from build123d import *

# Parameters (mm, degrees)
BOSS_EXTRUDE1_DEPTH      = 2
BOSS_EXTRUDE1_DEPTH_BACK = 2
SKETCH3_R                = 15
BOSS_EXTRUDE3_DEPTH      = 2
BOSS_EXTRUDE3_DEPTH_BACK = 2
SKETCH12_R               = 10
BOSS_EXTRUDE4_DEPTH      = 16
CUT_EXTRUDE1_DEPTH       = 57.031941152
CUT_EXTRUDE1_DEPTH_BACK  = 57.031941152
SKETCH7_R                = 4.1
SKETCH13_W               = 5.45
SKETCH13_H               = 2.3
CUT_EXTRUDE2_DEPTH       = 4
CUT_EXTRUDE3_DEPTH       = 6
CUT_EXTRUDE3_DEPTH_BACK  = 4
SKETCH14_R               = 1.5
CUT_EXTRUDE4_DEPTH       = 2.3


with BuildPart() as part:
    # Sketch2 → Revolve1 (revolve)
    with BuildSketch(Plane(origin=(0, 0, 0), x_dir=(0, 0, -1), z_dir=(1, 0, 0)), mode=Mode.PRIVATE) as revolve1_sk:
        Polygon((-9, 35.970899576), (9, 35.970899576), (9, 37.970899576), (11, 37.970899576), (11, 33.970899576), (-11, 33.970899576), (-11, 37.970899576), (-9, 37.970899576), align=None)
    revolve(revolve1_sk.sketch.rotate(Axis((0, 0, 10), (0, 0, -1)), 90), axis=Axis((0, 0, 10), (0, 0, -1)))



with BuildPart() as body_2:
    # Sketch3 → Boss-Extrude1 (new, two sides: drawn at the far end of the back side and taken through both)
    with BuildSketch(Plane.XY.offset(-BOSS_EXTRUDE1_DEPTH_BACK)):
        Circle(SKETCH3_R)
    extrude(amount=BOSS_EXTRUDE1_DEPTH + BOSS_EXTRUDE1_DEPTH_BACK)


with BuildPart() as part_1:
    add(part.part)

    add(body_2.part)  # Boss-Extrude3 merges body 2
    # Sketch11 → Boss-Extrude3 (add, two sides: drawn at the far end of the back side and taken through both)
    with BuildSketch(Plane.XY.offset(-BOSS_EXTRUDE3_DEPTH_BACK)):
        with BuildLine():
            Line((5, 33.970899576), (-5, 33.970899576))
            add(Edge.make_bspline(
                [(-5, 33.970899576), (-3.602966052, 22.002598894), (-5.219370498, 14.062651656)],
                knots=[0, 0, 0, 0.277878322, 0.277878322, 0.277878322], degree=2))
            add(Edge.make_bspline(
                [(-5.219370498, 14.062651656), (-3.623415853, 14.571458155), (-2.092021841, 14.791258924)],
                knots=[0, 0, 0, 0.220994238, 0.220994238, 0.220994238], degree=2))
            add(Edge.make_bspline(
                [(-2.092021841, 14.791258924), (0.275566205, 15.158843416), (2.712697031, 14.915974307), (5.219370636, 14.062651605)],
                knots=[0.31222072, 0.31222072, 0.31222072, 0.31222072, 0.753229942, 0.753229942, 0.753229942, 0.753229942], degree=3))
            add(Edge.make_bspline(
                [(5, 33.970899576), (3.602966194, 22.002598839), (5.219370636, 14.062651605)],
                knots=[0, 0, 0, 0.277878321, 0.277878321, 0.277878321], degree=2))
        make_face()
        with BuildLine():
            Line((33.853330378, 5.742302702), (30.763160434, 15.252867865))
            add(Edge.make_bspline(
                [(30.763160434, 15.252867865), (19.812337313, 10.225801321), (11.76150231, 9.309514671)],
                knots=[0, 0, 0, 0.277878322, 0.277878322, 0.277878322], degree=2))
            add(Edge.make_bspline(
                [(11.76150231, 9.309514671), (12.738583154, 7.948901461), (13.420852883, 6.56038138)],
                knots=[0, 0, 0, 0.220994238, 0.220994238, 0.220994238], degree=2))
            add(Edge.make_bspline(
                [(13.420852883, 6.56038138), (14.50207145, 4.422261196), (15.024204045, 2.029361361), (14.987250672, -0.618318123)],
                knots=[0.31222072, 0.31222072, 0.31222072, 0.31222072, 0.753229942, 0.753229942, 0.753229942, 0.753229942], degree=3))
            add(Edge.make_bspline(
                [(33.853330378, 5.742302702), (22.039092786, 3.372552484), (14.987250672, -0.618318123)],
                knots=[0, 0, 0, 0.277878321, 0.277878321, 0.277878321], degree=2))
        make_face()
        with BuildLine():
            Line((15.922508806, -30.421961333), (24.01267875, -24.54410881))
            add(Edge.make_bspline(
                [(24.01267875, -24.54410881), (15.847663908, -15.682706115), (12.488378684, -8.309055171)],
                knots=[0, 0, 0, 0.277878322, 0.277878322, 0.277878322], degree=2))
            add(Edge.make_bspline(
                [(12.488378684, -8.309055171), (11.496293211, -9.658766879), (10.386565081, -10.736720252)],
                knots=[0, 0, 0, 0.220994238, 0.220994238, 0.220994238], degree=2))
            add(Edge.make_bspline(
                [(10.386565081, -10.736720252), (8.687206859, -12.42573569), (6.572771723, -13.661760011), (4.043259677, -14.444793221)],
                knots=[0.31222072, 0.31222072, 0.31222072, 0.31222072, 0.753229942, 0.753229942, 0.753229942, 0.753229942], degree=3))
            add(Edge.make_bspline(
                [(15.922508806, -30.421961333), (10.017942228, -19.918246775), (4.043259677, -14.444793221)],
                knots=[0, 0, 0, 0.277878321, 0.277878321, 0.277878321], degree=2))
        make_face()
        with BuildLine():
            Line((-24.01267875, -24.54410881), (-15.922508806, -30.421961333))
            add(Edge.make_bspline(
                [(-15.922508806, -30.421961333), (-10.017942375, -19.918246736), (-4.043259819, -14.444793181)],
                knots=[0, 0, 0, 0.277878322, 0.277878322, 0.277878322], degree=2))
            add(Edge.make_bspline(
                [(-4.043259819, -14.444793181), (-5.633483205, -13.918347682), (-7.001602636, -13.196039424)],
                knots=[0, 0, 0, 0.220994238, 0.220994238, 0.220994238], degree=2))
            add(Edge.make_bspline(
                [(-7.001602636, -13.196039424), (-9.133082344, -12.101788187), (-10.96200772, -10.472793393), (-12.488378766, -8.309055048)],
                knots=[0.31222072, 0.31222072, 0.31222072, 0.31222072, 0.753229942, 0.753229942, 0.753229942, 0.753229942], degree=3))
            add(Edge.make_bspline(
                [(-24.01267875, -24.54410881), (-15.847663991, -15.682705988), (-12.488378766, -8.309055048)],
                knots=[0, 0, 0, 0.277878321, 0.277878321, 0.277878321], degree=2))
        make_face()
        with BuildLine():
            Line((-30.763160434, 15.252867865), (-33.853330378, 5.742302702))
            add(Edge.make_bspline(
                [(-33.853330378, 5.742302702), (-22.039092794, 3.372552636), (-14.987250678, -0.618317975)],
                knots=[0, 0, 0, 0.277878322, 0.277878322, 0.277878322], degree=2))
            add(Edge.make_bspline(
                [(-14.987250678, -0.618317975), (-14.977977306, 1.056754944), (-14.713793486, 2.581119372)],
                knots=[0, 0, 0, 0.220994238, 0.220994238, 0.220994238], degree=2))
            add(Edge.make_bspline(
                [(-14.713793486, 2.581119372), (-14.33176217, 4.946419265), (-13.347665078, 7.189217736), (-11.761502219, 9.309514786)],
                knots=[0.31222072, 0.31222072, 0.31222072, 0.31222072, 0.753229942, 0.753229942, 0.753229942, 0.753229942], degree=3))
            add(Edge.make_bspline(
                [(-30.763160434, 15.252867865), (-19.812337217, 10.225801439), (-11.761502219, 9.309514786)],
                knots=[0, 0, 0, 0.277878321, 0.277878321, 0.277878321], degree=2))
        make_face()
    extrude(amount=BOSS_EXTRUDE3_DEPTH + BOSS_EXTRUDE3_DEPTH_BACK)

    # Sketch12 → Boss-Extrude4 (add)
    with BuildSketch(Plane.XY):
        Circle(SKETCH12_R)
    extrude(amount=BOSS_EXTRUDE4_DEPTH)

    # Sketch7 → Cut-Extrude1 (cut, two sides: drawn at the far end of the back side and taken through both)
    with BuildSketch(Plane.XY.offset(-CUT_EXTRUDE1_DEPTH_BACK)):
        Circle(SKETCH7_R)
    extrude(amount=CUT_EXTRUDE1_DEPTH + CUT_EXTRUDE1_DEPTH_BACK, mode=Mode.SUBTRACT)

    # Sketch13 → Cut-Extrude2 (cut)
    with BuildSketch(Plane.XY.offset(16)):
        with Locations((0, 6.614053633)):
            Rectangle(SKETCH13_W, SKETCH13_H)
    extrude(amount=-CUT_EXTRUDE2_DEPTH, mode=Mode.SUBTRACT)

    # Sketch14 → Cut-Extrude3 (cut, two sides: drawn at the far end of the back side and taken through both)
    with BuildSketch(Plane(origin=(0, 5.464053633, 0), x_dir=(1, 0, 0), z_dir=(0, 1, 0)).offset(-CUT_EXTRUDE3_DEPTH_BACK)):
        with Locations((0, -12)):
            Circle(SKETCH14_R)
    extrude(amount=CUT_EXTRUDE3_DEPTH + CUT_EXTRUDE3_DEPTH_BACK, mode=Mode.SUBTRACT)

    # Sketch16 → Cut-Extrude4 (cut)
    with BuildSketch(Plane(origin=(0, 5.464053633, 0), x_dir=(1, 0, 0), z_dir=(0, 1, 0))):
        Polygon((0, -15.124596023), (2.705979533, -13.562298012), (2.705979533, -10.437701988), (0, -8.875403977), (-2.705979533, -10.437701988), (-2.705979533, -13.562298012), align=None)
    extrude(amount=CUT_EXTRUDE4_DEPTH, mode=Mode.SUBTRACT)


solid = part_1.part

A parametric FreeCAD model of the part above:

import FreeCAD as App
import Part
import Sketcher
Q = App.Units.Quantity


def add_polygon(sketch, points):
    """Adds a closed chain of lines whose ends are joined by coincident constraints."""
    first, n = sketch.GeometryCount, len(points)
    for a, b in zip(points, points[1:] + points[:1]):
        sketch.addGeometry(Part.LineSegment(App.Vector(*a, 0), App.Vector(*b, 0)), False)
    for i in range(n):
        sketch.addConstraint(Sketcher.Constraint("Coincident", first + i, 2, first + (i + 1) % n, 1))

doc = App.newDocument("Part")
params = doc.addObject("Spreadsheet::Sheet", "Params")
for row, (alias, value) in enumerate([
    ("sketch1_width", "2 mm"),
    ("sketch1_width2", "4 mm"),
    ("sketch1_height", "18 mm"),
    ("revolution_angle", "360 deg"),
    ("sketch2_diameter", "30 mm"),
    ("pad1_length", "2 mm"),
    ("pad1_length2", "2 mm"),
    ("pad2_length", "2 mm"),
    ("pad2_length2", "2 mm"),
    ("sketch4_diameter", "20 mm"),
    ("pad3_length", "16 mm"),
    ("sketch5_diameter", "8.2 mm"),
    ("sketch6_height", "2.3 mm"),
    ("sketch6_width", "5.45 mm"),
    ("pocket2_length", "4 mm"),
    ("sketch7_diameter", "3 mm"),
    ("pocket3_length", "6 mm"),
    ("pocket3_length2", "4 mm"),
    ("pocket4_length", "2.3 mm"),
], start=1):
    params.set(f"A{row}", alias)
    params.set(f"B{row}", "=" + value)
    params.setAlias(f"B{row}", alias)

body = doc.addObject("PartDesign::Body", "Body")

# Sketch on YZ plane
sketch1 = body.newObject("Sketcher::SketchObject", "Sketch")
sketch1.AttachmentSupport = (doc.getObject("YZ_Plane"), [""])
sketch1.MapMode = "FlatFace"
add_polygon(sketch1, [(36, -9), (36, 9), (38, 9), (38, 11), (34, 11), (34, -11), (38, -11), (38, -9)])  # lines 0-7
sketch1.addConstraint(Sketcher.Constraint("Vertical", 0))
sketch1.addConstraint(Sketcher.Constraint("Horizontal", 1))
sketch1.addConstraint(Sketcher.Constraint("Vertical", 2))
sketch1.addConstraint(Sketcher.Constraint("Horizontal", 3))
sketch1.addConstraint(Sketcher.Constraint("Vertical", 4))
sketch1.addConstraint(Sketcher.Constraint("Horizontal", 5))
sketch1.addConstraint(Sketcher.Constraint("Vertical", 6))
sketch1.addConstraint(Sketcher.Constraint("Horizontal", 7))
sketch1.addConstraint(Sketcher.Constraint("Symmetric", 2, 2, 5, 2, -1))
sketch1.addConstraint(Sketcher.Constraint("Equal", 7, 2))
sketch1.addConstraint(Sketcher.Constraint("Equal", 2, 6))
sketch1.addConstraint(Sketcher.Constraint("DistanceX", 1, 1, 1, 2, 2.0))
sketch1.addConstraint(Sketcher.Constraint("DistanceX", 3, 2, 3, 1, 4.0))
sketch1.addConstraint(Sketcher.Constraint("DistanceY", 0, 1, 0, 2, 18.0))
sketch1.addConstraint(Sketcher.Constraint("DistanceX", -1, 1, 0, 2, 35.9709))
sketch1.setExpression("Constraints[19]", "Params.sketch1_width")
sketch1.setExpression("Constraints[20]", "Params.sketch1_width2")
sketch1.setExpression("Constraints[21]", "Params.sketch1_height")
revolution = body.newObject("PartDesign::Revolution", "Revolution")
revolution.Profile = sketch1
revolution.ReferenceAxis = (sketch1, ["V_Axis"])
revolution.setExpression("Angle", "Params.revolution_angle")
body2 = doc.addObject("PartDesign::Body", "Body001")

# Sketch on XY plane
sketch2 = body2.newObject("Sketcher::SketchObject", "Sketch001")
sketch2.AttachmentSupport = (doc.getObject("XY_Plane001"), [""])
sketch2.MapMode = "FlatFace"
sketch2.addGeometry(Part.Circle(App.Vector(0, 0, 0), App.Vector(0, 0, 1), 15), False)
sketch2.addConstraint(Sketcher.Constraint("Coincident", 0, 3, -1, 1))
sketch2.addConstraint(Sketcher.Constraint("Diameter", 0, 30.0))
sketch2.setExpression("Constraints[1]", "Params.sketch2_diameter")
pad1 = body2.newObject("PartDesign::Pad", "Pad")
pad1.Profile = sketch2
pad1.Type = "TwoLengths"
pad1.setExpression("Length", "Params.pad1_length")
pad1.setExpression("Length2", "Params.pad1_length2")
body.AllowCompound = True
doc.recompute()

boolean = body.newObject("PartDesign::Boolean", "Boolean")
boolean.Type = "Fuse"
boolean.addObjects([body2])

# Sketch on XY plane
sketch3 = body.newObject("Sketcher::SketchObject", "Sketch002")
sketch3.AttachmentSupport = (doc.getObject("XY_Plane"), [""])
sketch3.MapMode = "FlatFace"
sketch3.addGeometry(Part.LineSegment(App.Vector(5, 33.9709, 0), App.Vector(-5, 33.9709, 0)), False)
sketch3.addGeometry(Part.BSplineCurve([App.Vector(-5, 33.9709, 0), App.Vector(-3.602966, 22.002599, 0), App.Vector(-5.21937, 14.062652, 0)], [3, 3], [0, 0.277878322], False, 2, [1, 1, 1], False), False)
sketch3.addGeometry(Part.BSplineCurve([App.Vector(-5.21937, 14.062652, 0), App.Vector(-3.623416, 14.571458, 0), App.Vector(-2.092022, 14.791259, 0)], [3, 3], [0, 0.220994238], False, 2, [1, 1, 1], False), False)
sketch3.addGeometry(Part.BSplineCurve([App.Vector(-2.092022, 14.791259, 0), App.Vector(0.275566, 15.158843, 0), App.Vector(2.712697, 14.915974, 0), App.Vector(5.219371, 14.062652, 0)], [4, 4], [0.31222072, 0.753229942], False, 3, [1, 1, 1, 1], False), False)
sketch3.addGeometry(Part.BSplineCurve([App.Vector(5, 33.9709, 0), App.Vector(3.602966, 22.002599, 0), App.Vector(5.219371, 14.062652, 0)], [3, 3], [0, 0.277878321], False, 2, [1, 1, 1], False), False)
sketch3.addGeometry(Part.LineSegment(App.Vector(33.85333, 5.742303, 0), App.Vector(30.76316, 15.252868, 0)), False)
sketch3.addGeometry(Part.BSplineCurve([App.Vector(30.76316, 15.252868, 0), App.Vector(19.812337, 10.225801, 0), App.Vector(11.761502, 9.309515, 0)], [3, 3], [0, 0.277878322], False, 2, [1, 1, 1], False), False)
sketch3.addGeometry(Part.BSplineCurve([App.Vector(11.761502, 9.309515, 0), App.Vector(12.738583, 7.948901, 0), App.Vector(13.420853, 6.560381, 0)], [3, 3], [0, 0.220994238], False, 2, [1, 1, 1], False), False)
sketch3.addGeometry(Part.BSplineCurve([App.Vector(13.420853, 6.560381, 0), App.Vector(14.502071, 4.422261, 0), App.Vector(15.024204, 2.029361, 0), App.Vector(14.987251, -0.618318, 0)], [4, 4], [0.31222072, 0.753229942], False, 3, [1, 1, 1, 1], False), False)
sketch3.addGeometry(Part.BSplineCurve([App.Vector(33.85333, 5.742303, 0), App.Vector(22.039093, 3.372552, 0), App.Vector(14.987251, -0.618318, 0)], [3, 3], [0, 0.277878321], False, 2, [1, 1, 1], False), False)
sketch3.addGeometry(Part.LineSegment(App.Vector(15.922509, -30.421961, 0), App.Vector(24.012679, -24.544109, 0)), False)
sketch3.addGeometry(Part.BSplineCurve([App.Vector(24.012679, -24.544109, 0), App.Vector(15.847664, -15.682706, 0), App.Vector(12.488379, -8.309055, 0)], [3, 3], [0, 0.277878322], False, 2, [1, 1, 1], False), False)
sketch3.addGeometry(Part.BSplineCurve([App.Vector(12.488379, -8.309055, 0), App.Vector(11.496293, -9.658767, 0), App.Vector(10.386565, -10.73672, 0)], [3, 3], [0, 0.220994238], False, 2, [1, 1, 1], False), False)
sketch3.addGeometry(Part.BSplineCurve([App.Vector(10.386565, -10.73672, 0), App.Vector(8.687207, -12.425736, 0), App.Vector(6.572772, -13.66176, 0), App.Vector(4.04326, -14.444793, 0)], [4, 4], [0.31222072, 0.753229942], False, 3, [1, 1, 1, 1], False), False)
sketch3.addGeometry(Part.BSplineCurve([App.Vector(15.922509, -30.421961, 0), App.Vector(10.017942, -19.918247, 0), App.Vector(4.04326, -14.444793, 0)], [3, 3], [0, 0.277878321], False, 2, [1, 1, 1], False), False)
sketch3.addGeometry(Part.LineSegment(App.Vector(-24.012679, -24.544109, 0), App.Vector(-15.922509, -30.421961, 0)), False)
sketch3.addGeometry(Part.BSplineCurve([App.Vector(-15.922509, -30.421961, 0), App.Vector(-10.017942, -19.918247, 0), App.Vector(-4.04326, -14.444793, 0)], [3, 3], [0, 0.277878322], False, 2, [1, 1, 1], False), False)
sketch3.addGeometry(Part.BSplineCurve([App.Vector(-4.04326, -14.444793, 0), App.Vector(-5.633483, -13.918348, 0), App.Vector(-7.001603, -13.196039, 0)], [3, 3], [0, 0.220994238], False, 2, [1, 1, 1], False), False)
sketch3.addGeometry(Part.BSplineCurve([App.Vector(-7.001603, -13.196039, 0), App.Vector(-9.133082, -12.101788, 0), App.Vector(-10.962008, -10.472793, 0), App.Vector(-12.488379, -8.309055, 0)], [4, 4], [0.31222072, 0.753229942], False, 3, [1, 1, 1, 1], False), False)
sketch3.addGeometry(Part.BSplineCurve([App.Vector(-24.012679, -24.544109, 0), App.Vector(-15.847664, -15.682706, 0), App.Vector(-12.488379, -8.309055, 0)], [3, 3], [0, 0.277878321], False, 2, [1, 1, 1], False), False)
sketch3.addGeometry(Part.LineSegment(App.Vector(-30.76316, 15.252868, 0), App.Vector(-33.85333, 5.742303, 0)), False)
sketch3.addGeometry(Part.BSplineCurve([App.Vector(-33.85333, 5.742303, 0), App.Vector(-22.039093, 3.372553, 0), App.Vector(-14.987251, -0.618318, 0)], [3, 3], [0, 0.277878322], False, 2, [1, 1, 1], False), False)
sketch3.addGeometry(Part.BSplineCurve([App.Vector(-14.987251, -0.618318, 0), App.Vector(-14.977977, 1.056755, 0), App.Vector(-14.713793, 2.581119, 0)], [3, 3], [0, 0.220994238], False, 2, [1, 1, 1], False), False)
sketch3.addGeometry(Part.BSplineCurve([App.Vector(-14.713793, 2.581119, 0), App.Vector(-14.331762, 4.946419, 0), App.Vector(-13.347665, 7.189218, 0), App.Vector(-11.761502, 9.309515, 0)], [4, 4], [0.31222072, 0.753229942], False, 3, [1, 1, 1, 1], False), False)
sketch3.addGeometry(Part.BSplineCurve([App.Vector(-30.76316, 15.252868, 0), App.Vector(-19.812337, 10.225801, 0), App.Vector(-11.761502, 9.309515, 0)], [3, 3], [0, 0.277878321], False, 2, [1, 1, 1], False), False)
sketch3.addConstraint(Sketcher.Constraint("Block", 1))
sketch3.addConstraint(Sketcher.Constraint("Block", 2))
sketch3.addConstraint(Sketcher.Constraint("Block", 3))
sketch3.addConstraint(Sketcher.Constraint("Block", 4))
sketch3.addConstraint(Sketcher.Constraint("Block", 6))
sketch3.addConstraint(Sketcher.Constraint("Block", 7))
sketch3.addConstraint(Sketcher.Constraint("Block", 8))
sketch3.addConstraint(Sketcher.Constraint("Block", 9))
sketch3.addConstraint(Sketcher.Constraint("Block", 11))
sketch3.addConstraint(Sketcher.Constraint("Block", 12))
sketch3.addConstraint(Sketcher.Constraint("Block", 13))
sketch3.addConstraint(Sketcher.Constraint("Block", 14))
sketch3.addConstraint(Sketcher.Constraint("Block", 16))
sketch3.addConstraint(Sketcher.Constraint("Block", 17))
sketch3.addConstraint(Sketcher.Constraint("Block", 18))
sketch3.addConstraint(Sketcher.Constraint("Block", 19))
sketch3.addConstraint(Sketcher.Constraint("Block", 21))
sketch3.addConstraint(Sketcher.Constraint("Block", 22))
sketch3.addConstraint(Sketcher.Constraint("Block", 23))
sketch3.addConstraint(Sketcher.Constraint("Block", 24))
sketch3.addConstraint(Sketcher.Constraint("Coincident", 0, 2, 1, 1))
sketch3.addConstraint(Sketcher.Constraint("Coincident", 4, 1, 0, 1))
sketch3.addConstraint(Sketcher.Constraint("Coincident", 5, 2, 6, 1))
sketch3.addConstraint(Sketcher.Constraint("Coincident", 9, 1, 5, 1))
sketch3.addConstraint(Sketcher.Constraint("Coincident", 10, 2, 11, 1))
sketch3.addConstraint(Sketcher.Constraint("Coincident", 14, 1, 10, 1))
sketch3.addConstraint(Sketcher.Constraint("Coincident", 15, 2, 16, 1))
sketch3.addConstraint(Sketcher.Constraint("Coincident", 19, 1, 15, 1))
sketch3.addConstraint(Sketcher.Constraint("Coincident", 20, 2, 21, 1))
sketch3.addConstraint(Sketcher.Constraint("Coincident", 24, 1, 20, 1))
pad2 = body.newObject("PartDesign::Pad", "Pad001")
pad2.Profile = sketch3
pad2.Type = "TwoLengths"
pad2.setExpression("Length", "Params.pad2_length")
pad2.setExpression("Length2", "Params.pad2_length2")

# Sketch on XY plane
sketch4 = body.newObject("Sketcher::SketchObject", "Sketch003")
sketch4.AttachmentSupport = (doc.getObject("XY_Plane"), [""])
sketch4.MapMode = "FlatFace"
sketch4.addGeometry(Part.Circle(App.Vector(0, 0, 0), App.Vector(0, 0, 1), 10), False)
sketch4.addConstraint(Sketcher.Constraint("Coincident", 0, 3, -1, 1))
sketch4.addConstraint(Sketcher.Constraint("Diameter", 0, 20.0))
sketch4.setExpression("Constraints[1]", "Params.sketch4_diameter")
pad3 = body.newObject("PartDesign::Pad", "Pad002")
pad3.Profile = sketch4
pad3.setExpression("Length", "Params.pad3_length")

# Sketch on XY plane
sketch5 = body.newObject("Sketcher::SketchObject", "Sketch004")
sketch5.AttachmentSupport = (doc.getObject("XY_Plane"), [""])
sketch5.MapMode = "FlatFace"
sketch5.addGeometry(Part.Circle(App.Vector(0, 0, 0), App.Vector(0, 0, 1), 4.1), False)
sketch5.addConstraint(Sketcher.Constraint("Coincident", 0, 3, -1, 1))
sketch5.addConstraint(Sketcher.Constraint("Diameter", 0, 8.2))
sketch5.setExpression("Constraints[1]", "Params.sketch5_diameter")
pocket1 = body.newObject("PartDesign::Pocket", "Pocket")
pocket1.Profile = sketch5
pocket1.Type = "ThroughAll"
pocket1.Midplane = True

# Sketch on XY plane
sketch6 = body.newObject("Sketcher::SketchObject", "Sketch005")
sketch6.AttachmentSupport = (doc.getObject("XY_Plane"), [""])
sketch6.MapMode = "FlatFace"
sketch6.AttachmentOffset = App.Placement(App.Vector(0, 0, 16), App.Rotation())
add_polygon(sketch6, [(-2.7, 7.8), (-2.7, 5.5), (2.7, 5.5), (2.7, 7.8)])  # lines 0-3
sketch6.addConstraint(Sketcher.Constraint("Vertical", 0))
sketch6.addConstraint(Sketcher.Constraint("Horizontal", 1))
sketch6.addConstraint(Sketcher.Constraint("Vertical", 2))
sketch6.addConstraint(Sketcher.Constraint("Horizontal", 3))
sketch6.addConstraint(Sketcher.Constraint("DistanceY", 0, 2, 0, 1, 2.3))
sketch6.addConstraint(Sketcher.Constraint("DistanceX", 1, 1, 1, 2, 5.45))
sketch6.addConstraint(Sketcher.Constraint("DistanceX", 0, 2, -1, 1, 2.725))
sketch6.addConstraint(Sketcher.Constraint("DistanceY", -1, 1, 0, 2, 5.464054))
sketch6.setExpression("Constraints[8]", "Params.sketch6_height")
sketch6.setExpression("Constraints[9]", "Params.sketch6_width")
pocket2 = body.newObject("PartDesign::Pocket", "Pocket001")
pocket2.Profile = sketch6
pocket2.setExpression("Length", "Params.pocket2_length")

# Sketch on XZ plane
sketch7 = body.newObject("Sketcher::SketchObject", "Sketch006")
sketch7.AttachmentSupport = (doc.getObject("XZ_Plane"), [""])
sketch7.MapMode = "FlatFace"
sketch7.AttachmentOffset = App.Placement(App.Vector(0, 0, -5.464054), App.Rotation())
sketch7.addGeometry(Part.Circle(App.Vector(0, 12, 0), App.Vector(0, 0, 1), 1.5), False)
sketch7.addConstraint(Sketcher.Constraint("PointOnObject", 0, 3, -2))
sketch7.addConstraint(Sketcher.Constraint("Diameter", 0, 3.0))
sketch7.addConstraint(Sketcher.Constraint("DistanceY", -1, 1, 0, 3, 12.0))
sketch7.setExpression("Constraints[1]", "Params.sketch7_diameter")
pocket3 = body.newObject("PartDesign::Pocket", "Pocket002")
pocket3.Profile = sketch7
pocket3.Type = "TwoLengths"
pocket3.setExpression("Length", "Params.pocket3_length")
pocket3.setExpression("Length2", "Params.pocket3_length2")

# Sketch on XZ plane
sketch8 = body.newObject("Sketcher::SketchObject", "Sketch007")
sketch8.AttachmentSupport = (doc.getObject("XZ_Plane"), [""])
sketch8.MapMode = "FlatFace"
sketch8.AttachmentOffset = App.Placement(App.Vector(0, 0, -5.464054), App.Rotation())
add_polygon(sketch8, [(0, 15.1), (2.7, 13.6), (2.7, 10.4), (0, 8.9), (-2.7, 10.4), (-2.7, 13.6)])  # lines 0-5
sketch8.addConstraint(Sketcher.Constraint("Vertical", 1))
sketch8.addConstraint(Sketcher.Constraint("Vertical", 4))
sketch8.addConstraint(Sketcher.Constraint("Symmetric", 1, 2, 3, 2, -2))
sketch8.addConstraint(Sketcher.Constraint("PointOnObject", 2, 2, -2))
sketch8.addConstraint(Sketcher.Constraint("PointOnObject", 5, 2, -2))
sketch8.addConstraint(Sketcher.Constraint("Parallel", 0, 3))
sketch8.addConstraint(Sketcher.Constraint("Parallel", 2, 5))
sketch8.addConstraint(Sketcher.Constraint("Angle", 0, Q("-30 deg")))
sketch8.addConstraint(Sketcher.Constraint("DistanceY", -1, 1, 0, 2, 13.562298))
sketch8.addConstraint(Sketcher.Constraint("DistanceY", -1, 1, 1, 2, 10.437702))
sketch8.addConstraint(Sketcher.Constraint("DistanceY", 2, 2, 1, 2, 1.562298))
pocket4 = body.newObject("PartDesign::Pocket", "Pocket003")
pocket4.Profile = sketch8
pocket4.setExpression("Length", "Params.pocket4_length")

doc.recompute()
